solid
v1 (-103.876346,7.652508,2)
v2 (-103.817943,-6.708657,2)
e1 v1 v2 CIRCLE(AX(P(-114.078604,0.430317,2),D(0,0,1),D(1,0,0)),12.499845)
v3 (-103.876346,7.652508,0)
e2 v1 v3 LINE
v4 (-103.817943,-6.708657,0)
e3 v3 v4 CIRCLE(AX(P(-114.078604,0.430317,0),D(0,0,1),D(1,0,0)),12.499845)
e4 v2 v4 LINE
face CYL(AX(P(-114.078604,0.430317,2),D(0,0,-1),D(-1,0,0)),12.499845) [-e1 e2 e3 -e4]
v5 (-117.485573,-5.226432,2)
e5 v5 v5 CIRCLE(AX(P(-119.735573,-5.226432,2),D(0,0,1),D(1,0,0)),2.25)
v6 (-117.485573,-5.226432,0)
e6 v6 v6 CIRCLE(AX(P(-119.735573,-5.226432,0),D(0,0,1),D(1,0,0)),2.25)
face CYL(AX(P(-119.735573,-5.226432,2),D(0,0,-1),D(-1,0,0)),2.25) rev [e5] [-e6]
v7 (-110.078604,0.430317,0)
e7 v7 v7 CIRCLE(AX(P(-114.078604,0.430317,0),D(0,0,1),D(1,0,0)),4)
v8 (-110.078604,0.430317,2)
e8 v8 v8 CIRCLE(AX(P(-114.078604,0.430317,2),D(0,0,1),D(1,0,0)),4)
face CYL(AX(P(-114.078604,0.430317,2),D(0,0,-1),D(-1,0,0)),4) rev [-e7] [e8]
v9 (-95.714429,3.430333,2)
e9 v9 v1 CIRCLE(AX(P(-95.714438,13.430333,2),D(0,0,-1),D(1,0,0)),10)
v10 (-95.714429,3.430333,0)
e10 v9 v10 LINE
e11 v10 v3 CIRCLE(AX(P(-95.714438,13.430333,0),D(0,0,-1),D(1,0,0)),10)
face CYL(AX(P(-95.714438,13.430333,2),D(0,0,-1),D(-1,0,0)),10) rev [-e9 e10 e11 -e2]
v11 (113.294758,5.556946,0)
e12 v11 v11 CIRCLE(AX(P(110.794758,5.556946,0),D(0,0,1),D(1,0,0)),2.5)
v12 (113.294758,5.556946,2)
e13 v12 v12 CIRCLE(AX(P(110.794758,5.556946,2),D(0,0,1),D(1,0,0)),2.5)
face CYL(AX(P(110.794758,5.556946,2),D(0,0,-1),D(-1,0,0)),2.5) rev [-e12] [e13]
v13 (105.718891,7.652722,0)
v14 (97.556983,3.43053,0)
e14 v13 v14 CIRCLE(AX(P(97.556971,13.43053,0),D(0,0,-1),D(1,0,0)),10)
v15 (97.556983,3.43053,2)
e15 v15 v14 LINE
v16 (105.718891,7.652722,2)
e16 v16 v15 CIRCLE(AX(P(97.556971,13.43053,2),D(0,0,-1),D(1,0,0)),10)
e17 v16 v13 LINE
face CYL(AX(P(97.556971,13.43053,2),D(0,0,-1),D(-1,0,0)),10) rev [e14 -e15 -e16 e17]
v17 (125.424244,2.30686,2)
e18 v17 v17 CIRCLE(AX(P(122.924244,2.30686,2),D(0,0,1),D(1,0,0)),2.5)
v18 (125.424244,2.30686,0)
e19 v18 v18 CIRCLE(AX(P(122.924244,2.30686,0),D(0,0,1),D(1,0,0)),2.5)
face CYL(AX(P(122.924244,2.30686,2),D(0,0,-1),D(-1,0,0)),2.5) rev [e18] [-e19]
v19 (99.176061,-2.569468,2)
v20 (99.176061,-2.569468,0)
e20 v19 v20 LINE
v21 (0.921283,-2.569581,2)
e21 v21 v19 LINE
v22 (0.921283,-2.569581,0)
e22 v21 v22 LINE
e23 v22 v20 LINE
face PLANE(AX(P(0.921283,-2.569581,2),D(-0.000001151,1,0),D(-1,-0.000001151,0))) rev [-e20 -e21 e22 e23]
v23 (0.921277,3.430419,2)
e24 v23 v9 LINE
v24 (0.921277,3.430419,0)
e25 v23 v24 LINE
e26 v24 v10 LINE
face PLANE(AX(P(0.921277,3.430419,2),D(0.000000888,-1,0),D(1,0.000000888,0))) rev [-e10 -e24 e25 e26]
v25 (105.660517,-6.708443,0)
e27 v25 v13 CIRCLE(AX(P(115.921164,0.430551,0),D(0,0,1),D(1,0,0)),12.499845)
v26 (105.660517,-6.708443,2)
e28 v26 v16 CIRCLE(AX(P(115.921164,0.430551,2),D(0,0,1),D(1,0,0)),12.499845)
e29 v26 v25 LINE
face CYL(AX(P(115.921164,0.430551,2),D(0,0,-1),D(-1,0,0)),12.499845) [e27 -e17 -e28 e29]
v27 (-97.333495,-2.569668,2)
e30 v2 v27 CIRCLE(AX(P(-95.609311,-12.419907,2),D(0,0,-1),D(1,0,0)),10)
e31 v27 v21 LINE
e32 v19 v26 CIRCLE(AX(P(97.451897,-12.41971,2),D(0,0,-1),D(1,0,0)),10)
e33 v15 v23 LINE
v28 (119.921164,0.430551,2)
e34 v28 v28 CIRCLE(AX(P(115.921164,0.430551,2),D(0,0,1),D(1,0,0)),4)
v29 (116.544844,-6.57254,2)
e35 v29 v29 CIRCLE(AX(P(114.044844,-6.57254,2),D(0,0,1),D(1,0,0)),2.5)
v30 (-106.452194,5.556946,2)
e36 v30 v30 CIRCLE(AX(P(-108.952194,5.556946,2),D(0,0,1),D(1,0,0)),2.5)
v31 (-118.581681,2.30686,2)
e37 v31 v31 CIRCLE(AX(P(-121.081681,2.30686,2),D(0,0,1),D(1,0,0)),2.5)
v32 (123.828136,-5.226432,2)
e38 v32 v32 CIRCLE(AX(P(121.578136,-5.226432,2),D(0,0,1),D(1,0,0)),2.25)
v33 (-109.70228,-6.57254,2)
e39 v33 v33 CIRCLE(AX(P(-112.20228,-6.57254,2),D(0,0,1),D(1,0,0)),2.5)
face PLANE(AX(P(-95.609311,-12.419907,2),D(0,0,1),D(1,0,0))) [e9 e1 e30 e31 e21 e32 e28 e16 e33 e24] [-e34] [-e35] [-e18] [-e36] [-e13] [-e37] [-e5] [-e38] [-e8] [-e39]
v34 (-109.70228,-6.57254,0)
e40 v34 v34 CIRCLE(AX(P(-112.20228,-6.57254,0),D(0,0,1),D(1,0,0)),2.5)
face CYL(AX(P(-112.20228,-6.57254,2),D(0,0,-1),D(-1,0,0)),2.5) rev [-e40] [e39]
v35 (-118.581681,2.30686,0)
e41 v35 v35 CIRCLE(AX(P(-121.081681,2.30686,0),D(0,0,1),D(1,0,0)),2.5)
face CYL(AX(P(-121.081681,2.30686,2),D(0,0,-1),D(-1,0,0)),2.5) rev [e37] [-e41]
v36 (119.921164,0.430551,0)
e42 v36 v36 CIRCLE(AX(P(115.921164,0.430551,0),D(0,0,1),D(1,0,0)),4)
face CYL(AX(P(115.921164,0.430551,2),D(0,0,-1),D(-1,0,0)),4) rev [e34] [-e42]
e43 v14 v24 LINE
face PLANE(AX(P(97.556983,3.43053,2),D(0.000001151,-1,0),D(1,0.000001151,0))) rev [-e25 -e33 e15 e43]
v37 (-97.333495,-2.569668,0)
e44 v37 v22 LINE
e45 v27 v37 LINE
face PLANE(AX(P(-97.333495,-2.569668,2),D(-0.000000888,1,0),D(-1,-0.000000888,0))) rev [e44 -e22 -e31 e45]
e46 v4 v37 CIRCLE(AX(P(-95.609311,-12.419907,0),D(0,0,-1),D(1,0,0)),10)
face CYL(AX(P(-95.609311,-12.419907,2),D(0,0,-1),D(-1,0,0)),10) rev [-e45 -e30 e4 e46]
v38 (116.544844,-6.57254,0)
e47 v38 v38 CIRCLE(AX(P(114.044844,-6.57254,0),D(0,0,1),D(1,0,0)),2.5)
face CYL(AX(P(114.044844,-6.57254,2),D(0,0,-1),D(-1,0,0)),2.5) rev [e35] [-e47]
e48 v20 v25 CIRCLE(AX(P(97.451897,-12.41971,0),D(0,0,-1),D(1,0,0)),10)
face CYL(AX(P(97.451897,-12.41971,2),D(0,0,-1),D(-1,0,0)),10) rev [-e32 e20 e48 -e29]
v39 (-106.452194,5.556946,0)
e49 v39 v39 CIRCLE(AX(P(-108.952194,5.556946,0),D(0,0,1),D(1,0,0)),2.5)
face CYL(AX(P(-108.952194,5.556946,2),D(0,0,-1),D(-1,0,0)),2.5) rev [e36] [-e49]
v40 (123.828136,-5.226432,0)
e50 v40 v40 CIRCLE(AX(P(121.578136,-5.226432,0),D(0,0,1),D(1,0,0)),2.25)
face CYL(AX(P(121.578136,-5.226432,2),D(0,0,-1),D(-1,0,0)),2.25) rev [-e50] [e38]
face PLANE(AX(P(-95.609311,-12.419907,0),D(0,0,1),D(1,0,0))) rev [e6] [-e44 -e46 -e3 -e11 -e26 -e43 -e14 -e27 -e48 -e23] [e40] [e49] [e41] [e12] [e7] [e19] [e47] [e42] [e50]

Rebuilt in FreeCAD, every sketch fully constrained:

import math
import FreeCAD as App
import Part
import Sketcher

V = App.Vector
Q = App.Units.Quantity

doc = App.newDocument("Part")
body = doc.addObject("PartDesign::Body", "Body")

sketch1 = body.newObject("Sketcher::SketchObject", "Sketch")
sketch1.AttachmentSupport = (doc.getObject("XY_Plane"), [""])
sketch1.MapMode = "FlatFace"
sketch1.addGeometry([
    Part.LineSegment(V(-97.333495, -2.569668, 0), V(0.921283, -2.569581, 0)),
    Part.LineSegment(V(0.921283, -2.569581, 0), V(99.176061, -2.569468, 0)),
    Part.ArcOfCircle(Part.Circle(V(97.451897, -12.41971, 0), V(0, 0, 1), 10), math.radians(34.828828), math.radians(80.071659)),
    Part.ArcOfCircle(Part.Circle(V(115.921164, 0.430551, 0), V(0, 0, 1), 12.499845), math.radians(-145.171172), math.radians(144.705392)),
    Part.ArcOfCircle(Part.Circle(V(97.556971, 13.43053, 0), V(0, 0, 1), 10), math.radians(-89.999934), math.radians(-35.294608)),
    Part.LineSegment(V(97.556983, 3.43053, 0), V(0.921277, 3.430419, 0)),
    Part.LineSegment(V(0.921277, 3.430419, 0), V(-95.714429, 3.430333, 0)),
    Part.ArcOfCircle(Part.Circle(V(-95.714438, 13.430333, 0), V(0, 0, 1), 10), math.radians(-144.705275), math.radians(-89.999949)),
    Part.ArcOfCircle(Part.Circle(V(-114.078604, 0.430317, 0), V(0, 0, 1), 12.499845), math.radians(35.294725), math.radians(325.171289)),
    Part.ArcOfCircle(Part.Circle(V(-95.609311, -12.419907, 0), V(0, 0, 1), 10), math.radians(99.928457), math.radians(145.171289)),
    Part.Circle(V(-112.20228, -6.57254, 0), V(0, 0, 1), 2.5),
    Part.Circle(V(-119.735573, -5.226432, 0), V(0, 0, 1), 2.25),
    Part.Circle(V(114.044844, -6.57254, 0), V(0, 0, 1), 2.5),
    Part.Circle(V(121.578136, -5.226432, 0), V(0, 0, 1), 2.25),
    Part.Circle(V(-114.078604, 0.430317, 0), V(0, 0, 1), 4),
    Part.Circle(V(-121.081681, 2.30686, 0), V(0, 0, 1), 2.5),
    Part.Circle(V(-108.952194, 5.556946, 0), V(0, 0, 1), 2.5),
    Part.Circle(V(115.921164, 0.430551, 0), V(0, 0, 1), 4),
    Part.Circle(V(122.924244, 2.30686, 0), V(0, 0, 1), 2.5),
    Part.Circle(V(110.794758, 5.556946, 0), V(0, 0, 1), 2.5),
], False)
sketch1.addConstraint([
    Sketcher.Constraint("Coincident", 0, 2, 1, 1),
    Sketcher.Constraint("Coincident", 1, 2, 2, 2),
    Sketcher.Constraint("Coincident", 2, 1, 3, 1),
    Sketcher.Constraint("Coincident", 3, 2, 4, 2),
    Sketcher.Constraint("Coincident", 4, 1, 5, 1),
    Sketcher.Constraint("Coincident", 5, 2, 6, 1),
    Sketcher.Constraint("Coincident", 6, 2, 7, 2),
    Sketcher.Constraint("Coincident", 7, 1, 8, 1),
    Sketcher.Constraint("Coincident", 8, 2, 9, 2),
    Sketcher.Constraint("Coincident", 9, 1, 0, 1),
    Sketcher.Constraint("Coincident", 14, 3, 8, 3),
    Sketcher.Constraint("Coincident", 17, 3, 3, 3),
    Sketcher.Constraint("Diameter", 10, Q("5 mm")),
    Sketcher.Constraint("Diameter", 12, Q("5 mm")),
    Sketcher.Constraint("Diameter", 14, Q("8 mm")),
    Sketcher.Constraint("Diameter", 15, Q("5 mm")),
    Sketcher.Constraint("Diameter", 16, Q("5 mm")),
    Sketcher.Constraint("Diameter", 17, Q("8 mm")),
    Sketcher.Constraint("Diameter", 18, Q("5 mm")),
    Sketcher.Constraint("Diameter", 19, Q("5 mm")),
    Sketcher.Constraint("Radius", 2, Q("10 mm")),
    Sketcher.Constraint("Radius", 4, Q("10 mm")),
    Sketcher.Constraint("Radius", 7, Q("10 mm")),
    Sketcher.Constraint("Radius", 9, Q("10 mm")),
    Sketcher.Constraint("Diameter", 11, Q("4.5 mm")),
    Sketcher.Constraint("Diameter", 13, Q("4.5 mm")),
    Sketcher.Constraint("DistanceY", 1, 2, 4, 3, Q("15.999998 mm")),
    Sketcher.Constraint("DistanceY", 0, 2, 5, 2, Q("6 mm")),
    Sketcher.Constraint("DistanceY", 9, 1, 6, 2, Q("6.000001 mm")),
    Sketcher.Constraint("Radius", 3, Q("12.499845 mm")),
    Sketcher.Constraint("Radius", 8, Q("12.499845 mm")),
    Sketcher.Constraint("DistanceX", 8, 3, 2, 3, Q("211.530502 mm")),
    Sketcher.Constraint("DistanceX", 15, 3, 10, 3, Q("8.8794 mm")),
    Sketcher.Constraint("DistanceY", 10, 3, 15, 3, Q("8.8794 mm")),
    Sketcher.Constraint("DistanceX", 12, 3, 18, 3, Q("8.8794 mm")),
    Sketcher.Constraint("DistanceY", 12, 3, 18, 3, Q("8.8794 mm")),
    Sketcher.Constraint("DistanceX", 16, 3, 9, 1, Q("11.618699 mm")),
    Sketcher.Constraint("DistanceY", 2, 3, -1, 1, Q("12.41971 mm")),
    Sketcher.Constraint("DistanceY", -1, 1, 3, 3, Q("0.430551 mm")),
    Sketcher.Constraint("DistanceX", -1, 1, 4, 3, Q("97.556971 mm")),
    Sketcher.Constraint("DistanceY", -1, 1, 4, 3, Q("13.43053 mm")),
    Sketcher.Constraint("DistanceX", 7, 3, -1, 1, Q("95.714438 mm")),
    Sketcher.Constraint("DistanceX", 9, 3, -1, 1, Q("95.609311 mm")),
    Sketcher.Constraint("DistanceX", 10, 3, -1, 1, Q("112.20228 mm")),
    Sketcher.Constraint("DistanceY", 10, 3, -1, 1, Q("6.57254 mm")),
    Sketcher.Constraint("DistanceY", 11, 3, -1, 1, Q("5.226432 mm")),
    Sketcher.Constraint("DistanceY", 12, 3, -1, 1, Q("6.57254 mm")),
    Sketcher.Constraint("DistanceY", 13, 3, -1, 1, Q("5.226432 mm")),
    Sketcher.Constraint("DistanceY", 0, 2, -1, 1, Q("2.569581 mm")),
    Sketcher.Constraint("DistanceX", -1, 1, 3, 2, Q("105.718891 mm")),
    Sketcher.Constraint("DistanceX", 6, 2, -1, 1, Q("95.714429 mm")),
    Sketcher.Constraint("DistanceY", -1, 1, 7, 1, Q("7.652508 mm")),
    Sketcher.Constraint("DistanceY", 9, 1, -1, 1, Q("2.569668 mm")),
    Sketcher.Constraint("DistanceX", 11, 3, 8, 3, Q("5.656968 mm")),
    Sketcher.Constraint("DistanceX", 12, 3, 3, 3, Q("1.87632 mm")),
    Sketcher.Constraint("DistanceX", 2, 3, 13, 3, Q("24.126239 mm")),
    Sketcher.Constraint("DistanceY", 8, 3, 16, 3, Q("5.12663 mm")),
    Sketcher.Constraint("DistanceX", 19, 3, 13, 3, Q("10.783378 mm")),
    Sketcher.Constraint("DistanceY", 13, 3, 19, 3, Q("10.783378 mm")),
    Sketcher.Constraint("DistanceX", 7, 3, 0, 2, Q("96.635721 mm")),
    Sketcher.Constraint("DistanceX", 2, 3, 2, 1, Q("8.20862 mm")),
    Sketcher.Constraint("DistanceX", 4, 1, 3, 2, Q("8.161908 mm")),
    Sketcher.Constraint("DistanceX", 5, 2, 2, 3, Q("96.530621 mm")),
    Sketcher.Constraint("DistanceX", 8, 2, 9, 3, Q("8.208631 mm")),
])
pad1 = body.newObject("PartDesign::Pad", "Pad")
pad1.Profile = sketch1
pad1.Length = 2

doc.recompute()
